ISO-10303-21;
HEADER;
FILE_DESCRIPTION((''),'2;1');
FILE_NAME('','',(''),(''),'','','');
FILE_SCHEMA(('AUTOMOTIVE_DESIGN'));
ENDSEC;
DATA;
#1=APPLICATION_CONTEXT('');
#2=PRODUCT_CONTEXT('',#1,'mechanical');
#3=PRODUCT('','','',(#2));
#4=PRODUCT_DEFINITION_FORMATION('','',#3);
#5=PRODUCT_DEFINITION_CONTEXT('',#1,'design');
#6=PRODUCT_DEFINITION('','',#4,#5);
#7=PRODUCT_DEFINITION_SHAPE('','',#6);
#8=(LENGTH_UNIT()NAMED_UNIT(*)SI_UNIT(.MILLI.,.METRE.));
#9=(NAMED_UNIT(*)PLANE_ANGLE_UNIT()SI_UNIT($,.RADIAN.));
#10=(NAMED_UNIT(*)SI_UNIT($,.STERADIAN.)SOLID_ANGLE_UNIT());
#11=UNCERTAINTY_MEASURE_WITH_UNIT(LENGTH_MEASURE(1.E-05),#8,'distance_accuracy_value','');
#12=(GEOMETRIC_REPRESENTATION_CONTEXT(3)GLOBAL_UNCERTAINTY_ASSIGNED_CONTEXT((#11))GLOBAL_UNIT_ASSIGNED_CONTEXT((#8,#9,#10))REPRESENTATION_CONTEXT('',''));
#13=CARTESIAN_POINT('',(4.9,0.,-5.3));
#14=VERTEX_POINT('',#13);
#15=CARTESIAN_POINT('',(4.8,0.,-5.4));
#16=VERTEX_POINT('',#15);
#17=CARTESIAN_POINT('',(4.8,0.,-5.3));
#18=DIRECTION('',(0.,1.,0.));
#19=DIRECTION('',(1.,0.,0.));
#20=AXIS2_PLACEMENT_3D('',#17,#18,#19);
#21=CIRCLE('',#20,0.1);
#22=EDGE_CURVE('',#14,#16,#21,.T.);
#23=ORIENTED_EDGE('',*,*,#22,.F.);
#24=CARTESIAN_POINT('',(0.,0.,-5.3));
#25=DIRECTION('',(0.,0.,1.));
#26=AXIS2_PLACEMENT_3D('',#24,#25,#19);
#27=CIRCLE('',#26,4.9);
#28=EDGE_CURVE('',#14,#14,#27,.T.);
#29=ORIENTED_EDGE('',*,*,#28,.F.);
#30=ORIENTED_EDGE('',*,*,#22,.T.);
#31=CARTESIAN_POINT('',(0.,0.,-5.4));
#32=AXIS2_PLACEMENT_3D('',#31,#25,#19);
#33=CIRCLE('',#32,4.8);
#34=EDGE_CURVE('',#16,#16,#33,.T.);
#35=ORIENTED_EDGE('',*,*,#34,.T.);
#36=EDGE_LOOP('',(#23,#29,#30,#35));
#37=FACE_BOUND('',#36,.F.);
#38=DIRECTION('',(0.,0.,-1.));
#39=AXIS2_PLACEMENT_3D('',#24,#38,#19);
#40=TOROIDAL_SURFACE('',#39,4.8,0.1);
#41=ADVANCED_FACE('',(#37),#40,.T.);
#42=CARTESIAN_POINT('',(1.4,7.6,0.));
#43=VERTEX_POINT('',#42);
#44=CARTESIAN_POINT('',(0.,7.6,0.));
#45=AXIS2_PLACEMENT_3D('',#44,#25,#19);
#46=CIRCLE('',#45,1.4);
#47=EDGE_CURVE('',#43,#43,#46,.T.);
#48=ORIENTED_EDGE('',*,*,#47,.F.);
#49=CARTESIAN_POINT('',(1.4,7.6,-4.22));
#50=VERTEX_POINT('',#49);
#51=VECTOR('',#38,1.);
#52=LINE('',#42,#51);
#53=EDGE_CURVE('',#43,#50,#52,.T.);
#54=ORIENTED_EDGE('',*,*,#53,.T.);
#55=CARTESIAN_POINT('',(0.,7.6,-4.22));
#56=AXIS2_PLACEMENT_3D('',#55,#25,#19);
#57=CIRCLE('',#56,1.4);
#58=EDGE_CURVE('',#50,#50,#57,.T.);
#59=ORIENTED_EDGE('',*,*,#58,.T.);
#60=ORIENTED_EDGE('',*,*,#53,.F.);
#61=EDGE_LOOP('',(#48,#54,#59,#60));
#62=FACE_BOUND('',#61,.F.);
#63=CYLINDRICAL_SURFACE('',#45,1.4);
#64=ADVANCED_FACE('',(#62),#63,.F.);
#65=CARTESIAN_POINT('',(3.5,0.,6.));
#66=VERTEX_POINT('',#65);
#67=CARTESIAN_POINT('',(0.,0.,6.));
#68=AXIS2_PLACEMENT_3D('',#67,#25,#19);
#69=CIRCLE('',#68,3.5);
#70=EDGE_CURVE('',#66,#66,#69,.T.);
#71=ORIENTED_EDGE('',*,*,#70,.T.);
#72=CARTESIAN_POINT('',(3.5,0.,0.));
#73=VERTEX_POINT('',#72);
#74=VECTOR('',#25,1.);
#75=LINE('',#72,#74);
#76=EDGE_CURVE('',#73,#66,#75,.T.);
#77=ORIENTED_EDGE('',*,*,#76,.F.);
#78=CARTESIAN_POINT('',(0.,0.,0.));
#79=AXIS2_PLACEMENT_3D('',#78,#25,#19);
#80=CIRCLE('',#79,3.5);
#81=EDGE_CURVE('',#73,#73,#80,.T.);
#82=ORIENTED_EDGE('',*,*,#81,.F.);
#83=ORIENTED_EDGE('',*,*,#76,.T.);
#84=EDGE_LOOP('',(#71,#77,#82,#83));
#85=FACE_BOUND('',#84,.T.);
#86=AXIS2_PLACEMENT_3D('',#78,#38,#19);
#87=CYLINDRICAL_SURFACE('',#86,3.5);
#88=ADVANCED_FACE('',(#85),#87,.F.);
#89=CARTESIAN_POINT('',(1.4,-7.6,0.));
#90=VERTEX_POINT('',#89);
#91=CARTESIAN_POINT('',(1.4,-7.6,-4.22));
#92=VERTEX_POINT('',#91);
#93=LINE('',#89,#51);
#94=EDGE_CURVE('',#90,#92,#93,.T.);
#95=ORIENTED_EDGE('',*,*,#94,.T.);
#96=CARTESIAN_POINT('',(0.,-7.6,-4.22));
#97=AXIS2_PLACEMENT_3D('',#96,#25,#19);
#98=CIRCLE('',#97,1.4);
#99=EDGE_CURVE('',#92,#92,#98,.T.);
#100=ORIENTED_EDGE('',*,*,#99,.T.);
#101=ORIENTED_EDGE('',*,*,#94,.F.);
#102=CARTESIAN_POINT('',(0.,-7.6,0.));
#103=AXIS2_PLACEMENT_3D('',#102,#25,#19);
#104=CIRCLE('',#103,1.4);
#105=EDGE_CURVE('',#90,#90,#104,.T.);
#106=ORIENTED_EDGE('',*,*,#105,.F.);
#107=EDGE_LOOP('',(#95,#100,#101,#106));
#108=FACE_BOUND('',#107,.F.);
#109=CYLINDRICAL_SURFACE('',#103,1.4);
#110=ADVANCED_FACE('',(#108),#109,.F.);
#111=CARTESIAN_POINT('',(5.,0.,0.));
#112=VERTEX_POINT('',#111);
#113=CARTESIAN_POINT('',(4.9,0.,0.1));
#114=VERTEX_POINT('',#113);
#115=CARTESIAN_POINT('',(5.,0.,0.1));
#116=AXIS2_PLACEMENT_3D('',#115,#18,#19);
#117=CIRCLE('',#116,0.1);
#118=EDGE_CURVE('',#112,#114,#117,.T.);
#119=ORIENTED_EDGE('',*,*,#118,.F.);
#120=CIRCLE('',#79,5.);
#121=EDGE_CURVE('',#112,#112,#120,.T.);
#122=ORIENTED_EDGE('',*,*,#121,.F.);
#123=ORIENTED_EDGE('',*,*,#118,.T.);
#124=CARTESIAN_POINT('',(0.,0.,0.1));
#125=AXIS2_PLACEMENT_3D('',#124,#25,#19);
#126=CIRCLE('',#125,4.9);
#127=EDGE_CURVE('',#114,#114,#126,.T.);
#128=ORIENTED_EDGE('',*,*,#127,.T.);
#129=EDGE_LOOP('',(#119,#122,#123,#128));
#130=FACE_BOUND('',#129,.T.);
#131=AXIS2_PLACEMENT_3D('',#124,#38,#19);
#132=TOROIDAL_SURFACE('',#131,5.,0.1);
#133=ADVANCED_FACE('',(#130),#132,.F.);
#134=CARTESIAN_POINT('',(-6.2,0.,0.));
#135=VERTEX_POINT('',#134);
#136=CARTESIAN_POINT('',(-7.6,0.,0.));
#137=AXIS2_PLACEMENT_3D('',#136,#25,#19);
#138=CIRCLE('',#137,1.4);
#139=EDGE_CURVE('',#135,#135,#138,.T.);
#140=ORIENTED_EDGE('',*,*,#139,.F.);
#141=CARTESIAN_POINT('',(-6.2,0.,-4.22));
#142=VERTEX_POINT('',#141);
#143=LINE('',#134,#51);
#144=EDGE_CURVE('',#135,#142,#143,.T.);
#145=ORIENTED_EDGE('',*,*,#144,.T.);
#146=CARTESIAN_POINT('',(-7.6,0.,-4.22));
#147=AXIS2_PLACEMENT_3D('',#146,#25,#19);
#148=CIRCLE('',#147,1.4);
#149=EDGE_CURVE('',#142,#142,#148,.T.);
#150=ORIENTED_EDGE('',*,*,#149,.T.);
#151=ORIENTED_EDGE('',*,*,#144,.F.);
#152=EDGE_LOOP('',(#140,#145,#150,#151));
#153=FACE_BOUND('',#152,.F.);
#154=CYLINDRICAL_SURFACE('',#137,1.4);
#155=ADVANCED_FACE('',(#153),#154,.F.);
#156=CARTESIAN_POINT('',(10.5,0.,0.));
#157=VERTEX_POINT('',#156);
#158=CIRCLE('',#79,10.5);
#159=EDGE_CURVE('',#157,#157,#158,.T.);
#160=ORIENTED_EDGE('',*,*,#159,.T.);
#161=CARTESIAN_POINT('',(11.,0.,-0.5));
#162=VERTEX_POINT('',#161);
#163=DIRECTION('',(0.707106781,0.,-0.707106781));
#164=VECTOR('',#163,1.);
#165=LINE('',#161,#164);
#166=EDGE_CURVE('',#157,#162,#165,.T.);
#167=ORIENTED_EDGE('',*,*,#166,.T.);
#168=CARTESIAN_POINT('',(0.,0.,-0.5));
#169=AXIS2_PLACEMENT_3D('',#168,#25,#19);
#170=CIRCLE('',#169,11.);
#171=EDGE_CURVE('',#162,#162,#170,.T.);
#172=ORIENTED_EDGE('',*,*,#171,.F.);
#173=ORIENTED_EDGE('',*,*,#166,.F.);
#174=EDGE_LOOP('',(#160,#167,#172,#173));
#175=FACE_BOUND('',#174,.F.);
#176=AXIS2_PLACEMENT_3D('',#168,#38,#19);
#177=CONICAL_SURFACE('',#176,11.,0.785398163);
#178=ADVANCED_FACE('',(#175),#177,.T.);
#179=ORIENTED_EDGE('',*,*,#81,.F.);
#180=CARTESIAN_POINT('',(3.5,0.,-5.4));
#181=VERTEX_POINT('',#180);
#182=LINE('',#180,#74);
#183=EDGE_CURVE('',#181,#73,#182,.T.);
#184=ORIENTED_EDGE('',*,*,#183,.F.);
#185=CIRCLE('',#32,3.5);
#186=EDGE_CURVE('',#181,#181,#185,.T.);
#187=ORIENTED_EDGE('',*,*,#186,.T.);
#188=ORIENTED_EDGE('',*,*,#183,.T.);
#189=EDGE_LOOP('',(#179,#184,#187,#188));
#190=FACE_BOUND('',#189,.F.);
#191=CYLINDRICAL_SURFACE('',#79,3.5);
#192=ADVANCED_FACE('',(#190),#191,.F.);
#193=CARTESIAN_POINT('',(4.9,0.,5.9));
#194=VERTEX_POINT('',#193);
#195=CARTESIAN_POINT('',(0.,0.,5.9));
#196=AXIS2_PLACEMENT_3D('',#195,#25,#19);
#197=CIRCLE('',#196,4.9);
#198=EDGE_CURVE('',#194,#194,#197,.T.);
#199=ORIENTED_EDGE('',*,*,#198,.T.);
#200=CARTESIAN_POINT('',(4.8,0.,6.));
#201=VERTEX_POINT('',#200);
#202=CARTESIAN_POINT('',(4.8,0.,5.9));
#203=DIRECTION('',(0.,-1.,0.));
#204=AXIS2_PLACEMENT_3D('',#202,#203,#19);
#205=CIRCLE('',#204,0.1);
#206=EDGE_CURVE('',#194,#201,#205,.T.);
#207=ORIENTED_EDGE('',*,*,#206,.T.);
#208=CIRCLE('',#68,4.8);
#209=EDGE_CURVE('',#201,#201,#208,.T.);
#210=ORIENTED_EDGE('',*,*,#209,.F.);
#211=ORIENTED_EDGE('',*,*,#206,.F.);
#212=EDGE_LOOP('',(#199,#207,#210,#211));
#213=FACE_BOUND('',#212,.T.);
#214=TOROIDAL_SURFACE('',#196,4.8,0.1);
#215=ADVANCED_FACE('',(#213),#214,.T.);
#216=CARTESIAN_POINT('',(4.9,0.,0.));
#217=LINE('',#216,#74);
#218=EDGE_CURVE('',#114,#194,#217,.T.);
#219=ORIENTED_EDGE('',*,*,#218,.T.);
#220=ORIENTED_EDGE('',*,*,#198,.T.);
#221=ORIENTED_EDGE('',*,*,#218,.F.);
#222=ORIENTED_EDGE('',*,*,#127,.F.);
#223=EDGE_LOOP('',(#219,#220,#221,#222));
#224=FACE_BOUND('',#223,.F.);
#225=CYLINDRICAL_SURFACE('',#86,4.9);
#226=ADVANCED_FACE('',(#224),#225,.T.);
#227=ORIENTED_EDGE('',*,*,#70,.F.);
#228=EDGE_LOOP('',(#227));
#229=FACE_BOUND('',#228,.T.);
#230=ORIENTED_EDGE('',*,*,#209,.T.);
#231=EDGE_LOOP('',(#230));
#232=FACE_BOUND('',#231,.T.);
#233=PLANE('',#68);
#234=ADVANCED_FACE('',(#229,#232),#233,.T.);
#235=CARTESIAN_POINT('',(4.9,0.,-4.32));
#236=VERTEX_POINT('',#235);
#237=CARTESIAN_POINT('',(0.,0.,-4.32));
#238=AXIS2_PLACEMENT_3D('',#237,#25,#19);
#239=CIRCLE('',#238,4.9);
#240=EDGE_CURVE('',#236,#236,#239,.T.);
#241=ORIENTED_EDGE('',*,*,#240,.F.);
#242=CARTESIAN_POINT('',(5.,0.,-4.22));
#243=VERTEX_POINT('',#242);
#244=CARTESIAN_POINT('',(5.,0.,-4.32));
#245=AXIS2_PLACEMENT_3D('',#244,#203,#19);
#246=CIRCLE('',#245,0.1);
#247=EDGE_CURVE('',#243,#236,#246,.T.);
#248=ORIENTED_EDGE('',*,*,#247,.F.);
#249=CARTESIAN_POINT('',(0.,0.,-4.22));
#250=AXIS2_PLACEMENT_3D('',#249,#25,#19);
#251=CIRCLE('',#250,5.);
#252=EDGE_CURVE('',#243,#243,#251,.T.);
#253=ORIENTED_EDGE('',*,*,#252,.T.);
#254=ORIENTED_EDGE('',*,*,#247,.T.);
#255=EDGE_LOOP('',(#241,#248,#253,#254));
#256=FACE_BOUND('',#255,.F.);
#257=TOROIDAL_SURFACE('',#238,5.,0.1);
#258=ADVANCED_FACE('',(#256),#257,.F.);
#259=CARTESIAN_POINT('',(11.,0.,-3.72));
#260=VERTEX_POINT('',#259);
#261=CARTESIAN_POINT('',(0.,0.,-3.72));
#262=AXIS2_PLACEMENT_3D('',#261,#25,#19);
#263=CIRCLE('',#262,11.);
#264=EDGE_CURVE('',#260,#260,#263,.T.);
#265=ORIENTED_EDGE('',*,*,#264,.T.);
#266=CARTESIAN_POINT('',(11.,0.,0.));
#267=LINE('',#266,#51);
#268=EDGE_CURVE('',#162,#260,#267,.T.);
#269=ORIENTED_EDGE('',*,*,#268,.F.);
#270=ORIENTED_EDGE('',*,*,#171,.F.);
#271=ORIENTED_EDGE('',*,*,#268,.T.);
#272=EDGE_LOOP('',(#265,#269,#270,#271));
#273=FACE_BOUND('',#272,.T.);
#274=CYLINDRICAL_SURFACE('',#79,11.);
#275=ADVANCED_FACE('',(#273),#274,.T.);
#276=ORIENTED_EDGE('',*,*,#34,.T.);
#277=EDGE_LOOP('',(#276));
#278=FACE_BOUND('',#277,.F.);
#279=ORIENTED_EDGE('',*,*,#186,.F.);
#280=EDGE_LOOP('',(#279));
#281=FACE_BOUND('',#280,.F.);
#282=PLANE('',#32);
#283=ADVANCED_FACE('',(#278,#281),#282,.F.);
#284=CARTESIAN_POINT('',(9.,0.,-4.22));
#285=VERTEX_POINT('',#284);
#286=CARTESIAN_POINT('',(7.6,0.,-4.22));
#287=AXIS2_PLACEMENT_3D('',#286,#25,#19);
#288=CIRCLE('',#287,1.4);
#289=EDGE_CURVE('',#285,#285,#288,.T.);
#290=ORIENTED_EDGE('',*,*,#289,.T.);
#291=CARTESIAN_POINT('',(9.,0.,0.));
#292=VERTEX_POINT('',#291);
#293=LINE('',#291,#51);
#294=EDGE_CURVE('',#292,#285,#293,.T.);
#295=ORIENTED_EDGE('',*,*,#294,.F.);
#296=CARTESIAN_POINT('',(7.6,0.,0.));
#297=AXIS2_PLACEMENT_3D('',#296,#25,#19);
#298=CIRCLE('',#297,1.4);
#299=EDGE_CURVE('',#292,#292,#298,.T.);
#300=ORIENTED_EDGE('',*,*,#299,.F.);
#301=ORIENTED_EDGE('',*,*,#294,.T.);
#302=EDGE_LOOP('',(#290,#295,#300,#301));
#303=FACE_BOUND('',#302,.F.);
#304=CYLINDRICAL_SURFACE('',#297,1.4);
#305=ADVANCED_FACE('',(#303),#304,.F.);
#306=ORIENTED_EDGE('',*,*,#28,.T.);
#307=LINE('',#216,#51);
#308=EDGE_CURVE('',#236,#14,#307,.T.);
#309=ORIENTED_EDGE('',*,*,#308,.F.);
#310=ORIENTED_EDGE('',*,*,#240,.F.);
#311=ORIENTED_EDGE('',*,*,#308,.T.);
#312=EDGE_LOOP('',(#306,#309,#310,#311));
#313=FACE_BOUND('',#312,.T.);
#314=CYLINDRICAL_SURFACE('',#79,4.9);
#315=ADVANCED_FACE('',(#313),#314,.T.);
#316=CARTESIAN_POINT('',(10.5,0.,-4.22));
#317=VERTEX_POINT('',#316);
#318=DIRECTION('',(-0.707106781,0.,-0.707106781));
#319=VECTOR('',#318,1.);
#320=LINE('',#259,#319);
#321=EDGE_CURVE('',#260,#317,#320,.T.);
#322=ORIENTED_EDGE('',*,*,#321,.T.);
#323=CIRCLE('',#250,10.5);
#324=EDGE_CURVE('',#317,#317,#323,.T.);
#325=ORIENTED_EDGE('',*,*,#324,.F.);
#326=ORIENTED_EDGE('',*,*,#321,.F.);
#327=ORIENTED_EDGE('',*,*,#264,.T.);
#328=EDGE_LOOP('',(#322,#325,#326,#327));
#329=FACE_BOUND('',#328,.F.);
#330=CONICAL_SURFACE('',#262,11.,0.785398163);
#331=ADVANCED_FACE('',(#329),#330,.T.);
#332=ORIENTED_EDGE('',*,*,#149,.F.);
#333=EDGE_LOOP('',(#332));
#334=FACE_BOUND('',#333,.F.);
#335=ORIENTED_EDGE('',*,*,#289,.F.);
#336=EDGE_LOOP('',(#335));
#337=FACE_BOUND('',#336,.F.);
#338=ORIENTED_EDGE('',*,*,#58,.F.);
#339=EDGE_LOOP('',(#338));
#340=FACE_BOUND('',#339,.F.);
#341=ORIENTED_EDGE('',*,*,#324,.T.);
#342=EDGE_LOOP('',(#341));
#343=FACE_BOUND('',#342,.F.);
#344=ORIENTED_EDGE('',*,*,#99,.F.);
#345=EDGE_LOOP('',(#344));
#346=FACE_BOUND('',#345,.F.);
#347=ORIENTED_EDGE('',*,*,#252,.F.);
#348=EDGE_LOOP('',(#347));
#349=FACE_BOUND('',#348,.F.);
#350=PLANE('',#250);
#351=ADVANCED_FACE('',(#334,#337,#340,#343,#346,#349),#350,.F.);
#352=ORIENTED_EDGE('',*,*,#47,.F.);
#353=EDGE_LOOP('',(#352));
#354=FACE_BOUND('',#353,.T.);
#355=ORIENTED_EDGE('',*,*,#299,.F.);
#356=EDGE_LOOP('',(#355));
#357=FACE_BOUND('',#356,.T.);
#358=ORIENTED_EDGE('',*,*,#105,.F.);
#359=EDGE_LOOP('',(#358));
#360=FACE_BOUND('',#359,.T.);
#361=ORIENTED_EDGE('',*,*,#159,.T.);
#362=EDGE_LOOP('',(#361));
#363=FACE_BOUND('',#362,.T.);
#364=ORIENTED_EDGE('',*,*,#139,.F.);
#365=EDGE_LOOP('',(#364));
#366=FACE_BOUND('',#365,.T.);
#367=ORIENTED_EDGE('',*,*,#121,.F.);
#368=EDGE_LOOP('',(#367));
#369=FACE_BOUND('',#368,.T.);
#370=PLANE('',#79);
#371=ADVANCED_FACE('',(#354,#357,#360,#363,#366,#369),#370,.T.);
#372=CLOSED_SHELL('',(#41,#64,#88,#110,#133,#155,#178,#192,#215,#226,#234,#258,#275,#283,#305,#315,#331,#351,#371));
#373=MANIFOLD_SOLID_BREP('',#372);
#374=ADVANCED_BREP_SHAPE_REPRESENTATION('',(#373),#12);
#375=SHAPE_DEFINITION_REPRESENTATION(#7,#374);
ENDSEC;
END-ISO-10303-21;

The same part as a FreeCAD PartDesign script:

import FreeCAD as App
import Part
import Sketcher

V = App.Vector
Q = App.Units.Quantity


def edges_at(feature, points):
    """Names of the edges that pass closest to the given points."""
    edges = feature.Shape.Edges
    near = lambda p: min(range(len(edges)), key=lambda i: edges[i].distToShape(Part.Vertex(*p))[0])
    return sorted({f"Edge{near(p) + 1}" for p in points})

doc = App.newDocument("Part")
params = doc.addObject("Spreadsheet::Sheet", "Params")
for row, (alias, value) in enumerate([
    ("sketch1_diameter", "22 mm"),
    ("sketch1_diameter2", "7 mm"),
    ("sketch1_diameter3", "2.8 mm"),
    ("pad1_length", "4.22 mm"),
    ("sketch2_diameter", "7 mm"),
    ("sketch2_diameter2", "9.8 mm"),
    ("pad2_length", "5.4 mm"),
    ("pad2_length2", "6 mm"),
    ("chamfer_size", "0.5 mm"),
    ("fillet_radius", "0.1 mm"),
], start=1):
    params.set(f"A{row}", alias)
    params.set(f"B{row}", "=" + value)
    params.setAlias(f"B{row}", alias)

body = doc.addObject("PartDesign::Body", "Body")

sketch1 = doc.addObject("Sketcher::SketchObject", "Sketch")
body.addObject(sketch1)
sketch1.AttachmentSupport = (doc.XY_Plane, [""])
sketch1.MapMode = "FlatFace"
sketch1.addGeometry([
    Part.Circle(V(0, 0, 0), V(0, 0, 1), 11),
    Part.Circle(V(-7.6, 0, 0), V(0, 0, 1), 1.4),
    Part.Circle(V(0, -7.6, 0), V(0, 0, 1), 1.4),
    Part.Circle(V(0, 0, 0), V(0, 0, 1), 3.5),
    Part.Circle(V(7.6, 0, 0), V(0, 0, 1), 1.4),
    Part.Circle(V(0, 7.6, 0), V(0, 0, 1), 1.4),
], False)
sketch1.addConstraint([
    Sketcher.Constraint("Coincident", 0, 3, -1, 1),
    Sketcher.Constraint("Coincident", 3, 3, -1, 1),
    Sketcher.Constraint("Equal", 1, 2),
    Sketcher.Constraint("Equal", 2, 4),
    Sketcher.Constraint("Equal", 4, 5),
    Sketcher.Constraint("Symmetric", 1, 3, 4, 3, -1, 1),
    Sketcher.Constraint("Symmetric", 2, 3, 5, 3, -1, 1),
    Sketcher.Constraint("PointOnObject", 1, 3, -1),
    Sketcher.Constraint("PointOnObject", 2, 3, -2),
    Sketcher.Constraint("Diameter", 0, Q("22 mm")),
    Sketcher.Constraint("Diameter", 3, Q("7 mm")),
    Sketcher.Constraint("Diameter", 1, Q("2.8 mm")),
    Sketcher.Constraint("DistanceX", 1, 3, -1, 1, Q("7.6 mm")),
    Sketcher.Constraint("DistanceY", 2, 3, -1, 1, Q("7.6 mm")),
])
sketch1.setExpression("Constraints[9]", "Params.sketch1_diameter")
sketch1.setExpression("Constraints[10]", "Params.sketch1_diameter2")
sketch1.setExpression("Constraints[11]", "Params.sketch1_diameter3")
pad1 = doc.addObject("PartDesign::Pad", "Pad")
body.addObject(pad1)
pad1.Profile = sketch1
pad1.setExpression("Length", "Params.pad1_length")
pad1.Reversed = True

sketch2 = doc.addObject("Sketcher::SketchObject", "Sketch001")
body.addObject(sketch2)
sketch2.AttachmentSupport = (doc.XY_Plane, [""])
sketch2.MapMode = "FlatFace"
sketch2.addGeometry([
    Part.Circle(V(0, 0, 0), V(0, 0, 1), 4.9),
    Part.Circle(V(0, 0, 0), V(0, 0, 1), 3.5),
], False)
sketch2.addConstraint([
    Sketcher.Constraint("Coincident", 0, 3, -1, 1),
    Sketcher.Constraint("Coincident", 1, 3, -1, 1),
    Sketcher.Constraint("Diameter", 1, Q("7 mm")),
    Sketcher.Constraint("Diameter", 0, Q("9.8 mm")),
])
sketch2.setExpression("Constraints[2]", "Params.sketch2_diameter")
sketch2.setExpression("Constraints[3]", "Params.sketch2_diameter2")
pad2 = doc.addObject("PartDesign::Pad", "Pad001")
body.addObject(pad2)
pad2.Profile = sketch2
pad2.Type = "TwoLengths"
pad2.setExpression("Length", "Params.pad2_length")
pad2.setExpression("Length2", "Params.pad2_length2")
pad2.Reversed = True
doc.recompute()

chamfer = doc.addObject("PartDesign::Chamfer", "Chamfer")
body.addObject(chamfer)
chamfer.Base = (pad2, edges_at(pad2, [(-11, 0, 0), (-11, 0, -4.22)]))
chamfer.setExpression("Size", "Params.chamfer_size")
doc.recompute()

fillet = doc.addObject("PartDesign::Fillet", "Fillet")
body.addObject(fillet)
fillet.Base = (chamfer, edges_at(chamfer, [
    (-4.9, 0, 0),
    (-4.9, 0, 6),
    (-4.9, 0, -4.22),
    (-4.9, 0, -5.4),
]))
fillet.setExpression("Radius", "Params.fillet_radius")

doc.recompute()
